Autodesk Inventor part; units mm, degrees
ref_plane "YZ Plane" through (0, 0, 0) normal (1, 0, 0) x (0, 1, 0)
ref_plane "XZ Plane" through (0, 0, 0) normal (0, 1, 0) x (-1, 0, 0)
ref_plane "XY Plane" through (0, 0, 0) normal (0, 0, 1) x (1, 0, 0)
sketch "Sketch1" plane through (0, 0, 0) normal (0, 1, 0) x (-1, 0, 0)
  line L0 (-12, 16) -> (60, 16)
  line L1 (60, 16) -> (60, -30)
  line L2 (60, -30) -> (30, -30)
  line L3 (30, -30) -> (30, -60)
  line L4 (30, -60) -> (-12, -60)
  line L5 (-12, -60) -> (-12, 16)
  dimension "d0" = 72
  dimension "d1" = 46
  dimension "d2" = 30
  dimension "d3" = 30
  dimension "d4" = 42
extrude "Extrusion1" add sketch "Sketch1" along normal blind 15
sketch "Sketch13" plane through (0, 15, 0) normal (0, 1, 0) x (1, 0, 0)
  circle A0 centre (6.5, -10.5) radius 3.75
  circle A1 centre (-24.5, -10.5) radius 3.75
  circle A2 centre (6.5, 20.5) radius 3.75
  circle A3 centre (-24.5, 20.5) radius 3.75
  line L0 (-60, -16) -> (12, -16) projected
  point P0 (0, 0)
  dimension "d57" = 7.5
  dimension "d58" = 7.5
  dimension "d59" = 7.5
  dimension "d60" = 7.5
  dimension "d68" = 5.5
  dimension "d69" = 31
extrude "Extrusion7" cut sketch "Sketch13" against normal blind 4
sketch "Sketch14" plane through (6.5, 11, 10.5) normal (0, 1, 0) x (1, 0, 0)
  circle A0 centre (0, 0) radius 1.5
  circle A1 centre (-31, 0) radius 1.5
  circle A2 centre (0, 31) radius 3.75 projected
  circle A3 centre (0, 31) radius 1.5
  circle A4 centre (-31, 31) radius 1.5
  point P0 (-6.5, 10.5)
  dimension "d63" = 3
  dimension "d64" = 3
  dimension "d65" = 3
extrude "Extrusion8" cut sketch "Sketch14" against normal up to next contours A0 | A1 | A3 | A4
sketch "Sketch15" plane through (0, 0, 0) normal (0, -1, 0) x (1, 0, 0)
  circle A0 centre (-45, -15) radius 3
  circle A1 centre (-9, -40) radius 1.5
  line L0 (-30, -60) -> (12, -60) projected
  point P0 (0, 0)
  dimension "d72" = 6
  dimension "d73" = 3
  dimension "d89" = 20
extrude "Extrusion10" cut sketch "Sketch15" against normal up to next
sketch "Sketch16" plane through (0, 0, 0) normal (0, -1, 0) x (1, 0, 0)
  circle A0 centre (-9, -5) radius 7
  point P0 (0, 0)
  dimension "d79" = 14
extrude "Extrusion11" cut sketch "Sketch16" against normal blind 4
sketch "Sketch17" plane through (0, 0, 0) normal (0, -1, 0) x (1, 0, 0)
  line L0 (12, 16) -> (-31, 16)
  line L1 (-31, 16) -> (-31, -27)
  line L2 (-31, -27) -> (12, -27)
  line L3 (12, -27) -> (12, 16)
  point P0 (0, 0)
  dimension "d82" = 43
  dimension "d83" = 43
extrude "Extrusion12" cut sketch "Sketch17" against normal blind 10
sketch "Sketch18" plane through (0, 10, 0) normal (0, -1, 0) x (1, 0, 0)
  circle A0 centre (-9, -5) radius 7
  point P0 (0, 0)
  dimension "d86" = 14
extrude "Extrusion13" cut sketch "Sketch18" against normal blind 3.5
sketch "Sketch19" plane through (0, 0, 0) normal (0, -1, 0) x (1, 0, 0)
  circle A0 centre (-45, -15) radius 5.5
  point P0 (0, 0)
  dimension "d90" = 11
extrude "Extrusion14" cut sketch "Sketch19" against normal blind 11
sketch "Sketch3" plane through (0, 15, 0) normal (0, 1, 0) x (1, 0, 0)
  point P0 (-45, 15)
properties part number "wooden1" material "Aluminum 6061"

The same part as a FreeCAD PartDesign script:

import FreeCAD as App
import Part
import Sketcher

V = App.Vector
Q = App.Units.Quantity

doc = App.newDocument("Part")
body = doc.addObject("PartDesign::Body", "Body")

# Sketch on XZ plane
sketch1 = body.newObject("Sketcher::SketchObject", "Sketch")
sketch1.AttachmentSupport = (doc.getObject("XZ_Plane"), [""])
sketch1.MapMode = "FlatFace"
sketch1.addGeometry([
    Part.LineSegment(V(-60, 16, 0), V(12, 16, 0)),  # 0
    Part.LineSegment(V(12, 16, 0), V(12, -60, 0)),  # 1
    Part.LineSegment(V(12, -60, 0), V(-30, -60, 0)),  # 2
    Part.LineSegment(V(-30, -60, 0), V(-30, -30, 0)),  # 3
    Part.LineSegment(V(-30, -30, 0), V(-60, -30, 0)),  # 4
    Part.LineSegment(V(-60, -30, 0), V(-60, 16, 0)),  # 5
], False)
sketch1.addConstraint([
    Sketcher.Constraint("Coincident", 0, 2, 1, 1),
    Sketcher.Constraint("Coincident", 1, 2, 2, 1),
    Sketcher.Constraint("Coincident", 2, 2, 3, 1),
    Sketcher.Constraint("Coincident", 3, 2, 4, 1),
    Sketcher.Constraint("Coincident", 4, 2, 5, 1),
    Sketcher.Constraint("Coincident", 5, 2, 0, 1),
    Sketcher.Constraint("Horizontal", 0),
    Sketcher.Constraint("Vertical", 1),
    Sketcher.Constraint("Horizontal", 2),
    Sketcher.Constraint("Vertical", 3),
    Sketcher.Constraint("Horizontal", 4),
    Sketcher.Constraint("Vertical", 5),
    Sketcher.Constraint("Equal", 4, 3),
    Sketcher.Constraint("DistanceX", 0, 1, 0, 2, Q("72 mm")),
    Sketcher.Constraint("DistanceX", 2, 2, 2, 1, Q("42 mm")),
    Sketcher.Constraint("DistanceY", 5, 1, 5, 2, Q("46 mm")),
    Sketcher.Constraint("DistanceX", 2, 2, -1, 1, Q("30 mm")),
    Sketcher.Constraint("DistanceY", 3, 2, -1, 1, Q("30 mm")),
])
pad1 = body.newObject("PartDesign::Pad", "Pad")
pad1.Profile = sketch1
pad1.Length = 15
pad1.Reversed = True

# Sketch on XZ plane
sketch2 = body.newObject("Sketcher::SketchObject", "Sketch001")
sketch2.AttachmentSupport = (doc.getObject("XZ_Plane"), [""])
sketch2.MapMode = "FlatFace"
sketch2.AttachmentOffset = App.Placement(V(0, 0, -15), App.Rotation())
sketch2.addGeometry([
    Part.Circle(V(6.5, 10.5, 0), V(0, 0, 1), 3.8),
    Part.Circle(V(-24.5, 10.5, 0), V(0, 0, 1), 3.8),
    Part.Circle(V(6.5, -20.5, 0), V(0, 0, 1), 3.8),
    Part.Circle(V(-24.5, -20.5, 0), V(0, 0, 1), 3.8),
], False)
sketch2.addConstraint([
    Sketcher.Constraint("Equal", 0, 1),
    Sketcher.Constraint("Equal", 1, 2),
    Sketcher.Constraint("Equal", 2, 3),
    Sketcher.Constraint("Horizontal", 0, 3, 1, 3),
    Sketcher.Constraint("Horizontal", 2, 3, 3, 3),
    Sketcher.Constraint("Vertical", 0, 3, 2, 3),
    Sketcher.Constraint("Vertical", 1, 3, 3, 3),
    Sketcher.Constraint("Diameter", 0, Q("7.5 mm")),
    Sketcher.Constraint("DistanceX", 1, 3, 0, 3, Q("31 mm")),
    Sketcher.Constraint("DistanceY", 2, 3, 0, 3, Q("31 mm")),
    Sketcher.Constraint("DistanceX", -1, 1, 0, 3, Q("6.5 mm")),
    Sketcher.Constraint("DistanceY", -1, 1, 0, 3, Q("10.5 mm")),
])
pocket1 = body.newObject("PartDesign::Pocket", "Pocket")
pocket1.Profile = sketch2
pocket1.Length = 4
pocket1.Reversed = True

# Sketch on XZ plane
sketch3 = body.newObject("Sketcher::SketchObject", "Sketch002")
sketch3.AttachmentSupport = (doc.getObject("XZ_Plane"), [""])
sketch3.MapMode = "FlatFace"
sketch3.AttachmentOffset = App.Placement(V(0, 0, -11), App.Rotation())
sketch3.addGeometry([
    Part.Circle(V(6.5, 10.5, 0), V(0, 0, 1), 1.5),
    Part.Circle(V(-24.5, 10.5, 0), V(0, 0, 1), 1.5),
    Part.Circle(V(6.5, -20.5, 0), V(0, 0, 1), 1.5),
    Part.Circle(V(-24.5, -20.5, 0), V(0, 0, 1), 1.5),
], False)
sketch3.addConstraint([
    Sketcher.Constraint("Equal", 0, 1),
    Sketcher.Constraint("Equal", 1, 2),
    Sketcher.Constraint("Equal", 2, 3),
    Sketcher.Constraint("Horizontal", 0, 3, 1, 3),
    Sketcher.Constraint("Horizontal", 2, 3, 3, 3),
    Sketcher.Constraint("Vertical", 0, 3, 2, 3),
    Sketcher.Constraint("Vertical", 1, 3, 3, 3),
    Sketcher.Constraint("Diameter", 0, Q("3 mm")),
    Sketcher.Constraint("DistanceX", 1, 3, 0, 3, Q("31 mm")),
    Sketcher.Constraint("DistanceY", 2, 3, 0, 3, Q("31 mm")),
    Sketcher.Constraint("DistanceX", -1, 1, 0, 3, Q("6.5 mm")),
    Sketcher.Constraint("DistanceY", -1, 1, 0, 3, Q("10.5 mm")),
])
pocket2 = body.newObject("PartDesign::Pocket", "Pocket001")
pocket2.Profile = sketch3
pocket2.Type = "UpToFirst"
pocket2.Reversed = True

# Sketch on XZ plane
sketch4 = body.newObject("Sketcher::SketchObject", "Sketch003")
sketch4.AttachmentSupport = (doc.getObject("XZ_Plane"), [""])
sketch4.MapMode = "FlatFace"
sketch4.addGeometry([
    Part.Circle(V(-45, -15, 0), V(0, 0, 1), 3),
    Part.Circle(V(-9, -40, 0), V(0, 0, 1), 1.5),
], False)
sketch4.addConstraint([
    Sketcher.Constraint("Diameter", 0, Q("6 mm")),
    Sketcher.Constraint("Diameter", 1, Q("3 mm")),
    Sketcher.Constraint("DistanceX", 0, 3, -1, 1, Q("45 mm")),
    Sketcher.Constraint("DistanceY", 0, 3, -1, 1, Q("15 mm")),
    Sketcher.Constraint("DistanceX", 1, 3, -1, 1, Q("9 mm")),
    Sketcher.Constraint("DistanceY", 1, 3, -1, 1, Q("40 mm")),
])
pocket3 = body.newObject("PartDesign::Pocket", "Pocket002")
pocket3.Profile = sketch4
pocket3.Type = "UpToFirst"

# Sketch on XZ plane
sketch5 = body.newObject("Sketcher::SketchObject", "Sketch004")
sketch5.AttachmentSupport = (doc.getObject("XZ_Plane"), [""])
sketch5.MapMode = "FlatFace"
sketch5.addGeometry(Part.Circle(V(-9, -5, 0), V(0, 0, 1), 7), False)
sketch5.addConstraint([
    Sketcher.Constraint("Diameter", 0, Q("14 mm")),
    Sketcher.Constraint("DistanceX", 0, 3, -1, 1, Q("9 mm")),
    Sketcher.Constraint("DistanceY", 0, 3, -1, 1, Q("5 mm")),
])
pocket4 = body.newObject("PartDesign::Pocket", "Pocket003")
pocket4.Profile = sketch5
pocket4.Length = 4

# Sketch on XZ plane
sketch6 = body.newObject("Sketcher::SketchObject", "Sketch005")
sketch6.AttachmentSupport = (doc.getObject("XZ_Plane"), [""])
sketch6.MapMode = "FlatFace"
sketch6.addGeometry([
    Part.LineSegment(V(12, -27, 0), V(12, 16, 0)),
    Part.LineSegment(V(12, 16, 0), V(-31, 16, 0)),
    Part.LineSegment(V(-31, 16, 0), V(-31, -27, 0)),
    Part.LineSegment(V(-31, -27, 0), V(12, -27, 0)),
], False)
sketch6.addConstraint([
    Sketcher.Constraint("Coincident", 0, 2, 1, 1),
    Sketcher.Constraint("Coincident", 1, 2, 2, 1),
    Sketcher.Constraint("Coincident", 2, 2, 3, 1),
    Sketcher.Constraint("Coincident", 3, 2, 0, 1),
    Sketcher.Constraint("Vertical", 0),
    Sketcher.Constraint("Horizontal", 1),
    Sketcher.Constraint("Vertical", 2),
    Sketcher.Constraint("Horizontal", 3),
    Sketcher.Constraint("Equal", 3, 0),
    Sketcher.Constraint("DistanceX", 1, 2, 1, 1, Q("43 mm")),
    Sketcher.Constraint("DistanceX", -1, 1, 0, 2, Q("12 mm")),
    Sketcher.Constraint("DistanceY", -1, 1, 0, 2, Q("16 mm")),
])
pocket5 = body.newObject("PartDesign::Pocket", "Pocket004")
pocket5.Profile = sketch6
pocket5.Length = 10

# Sketch on XZ plane
sketch7 = body.newObject("Sketcher::SketchObject", "Sketch006")
sketch7.AttachmentSupport = (doc.getObject("XZ_Plane"), [""])
sketch7.MapMode = "FlatFace"
sketch7.AttachmentOffset = App.Placement(V(0, 0, -10), App.Rotation())
sketch7.addGeometry(Part.Circle(V(-9, -5, 0), V(0, 0, 1), 7), False)
sketch7.addConstraint([
    Sketcher.Constraint("Diameter", 0, Q("14 mm")),
    Sketcher.Constraint("DistanceX", 0, 3, -1, 1, Q("9 mm")),
    Sketcher.Constraint("DistanceY", 0, 3, -1, 1, Q("5 mm")),
])
pocket6 = body.newObject("PartDesign::Pocket", "Pocket005")
pocket6.Profile = sketch7
pocket6.Length = 3.5

# Sketch on XZ plane
sketch8 = body.newObject("Sketcher::SketchObject", "Sketch007")
sketch8.AttachmentSupport = (doc.getObject("XZ_Plane"), [""])
sketch8.MapMode = "FlatFace"
sketch8.addGeometry(Part.Circle(V(-45, -15, 0), V(0, 0, 1), 6), False)
sketch8.addConstraint([
    Sketcher.Constraint("Diameter", 0, Q("11 mm")),
    Sketcher.Constraint("DistanceX", 0, 3, -1, 1, Q("45 mm")),
    Sketcher.Constraint("DistanceY", 0, 3, -1, 1, Q("15 mm")),
])
pocket7 = body.newObject("PartDesign::Pocket", "Pocket006")
pocket7.Profile = sketch8
pocket7.Length = 11

doc.recompute()
